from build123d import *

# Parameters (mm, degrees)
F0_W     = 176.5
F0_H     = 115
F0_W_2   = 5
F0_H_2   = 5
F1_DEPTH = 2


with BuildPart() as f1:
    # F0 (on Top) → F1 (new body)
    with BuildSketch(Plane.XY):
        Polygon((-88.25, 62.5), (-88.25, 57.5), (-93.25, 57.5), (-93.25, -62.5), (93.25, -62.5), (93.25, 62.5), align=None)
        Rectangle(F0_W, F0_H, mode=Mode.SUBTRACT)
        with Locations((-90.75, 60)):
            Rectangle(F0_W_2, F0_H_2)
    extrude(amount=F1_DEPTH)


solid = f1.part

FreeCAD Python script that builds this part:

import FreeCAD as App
import Part
import Sketcher

V = App.Vector

doc = App.newDocument("Part")
body = doc.addObject("PartDesign::Body", "Body")

# Sketch on XY plane
sketch1 = body.newObject("Sketcher::SketchObject", "Sketch")
sketch1.AttachmentSupport = (doc.getObject("XY_Plane"), [""])
sketch1.MapMode = "FlatFace"
sketch1.addGeometry(Part.LineSegment(V(93, -62, 0), V(93, 62, 0)), False)
sketch1.addGeometry(Part.LineSegment(V(93, 62, 0), V(-93, 62, 0)), False)
sketch1.addGeometry(Part.LineSegment(V(-93, 62, 0), V(-93, -62, 0)), False)
sketch1.addGeometry(Part.LineSegment(V(-93, -62, 0), V(93, -62, 0)), False)
sketch1.addGeometry(Part.LineSegment(V(-88, -58, 0), V(-88, 58, 0)), False)
sketch1.addGeometry(Part.LineSegment(V(-88, 58, 0), V(88, 58, 0)), False)
sketch1.addGeometry(Part.LineSegment(V(88, 58, 0), V(88, -58, 0)), False)
sketch1.addGeometry(Part.LineSegment(V(88, -58, 0), V(-88, -58, 0)), False)
sketch1.addConstraint(Sketcher.Constraint("Coincident", 0, 2, 1, 1))
sketch1.addConstraint(Sketcher.Constraint("Coincident", 1, 2, 2, 1))
sketch1.addConstraint(Sketcher.Constraint("Coincident", 2, 2, 3, 1))
sketch1.addConstraint(Sketcher.Constraint("Coincident", 3, 2, 0, 1))
sketch1.addConstraint(Sketcher.Constraint("Coincident", 4, 2, 5, 1))
sketch1.addConstraint(Sketcher.Constraint("Coincident", 5, 2, 6, 1))
sketch1.addConstraint(Sketcher.Constraint("Coincident", 6, 2, 7, 1))
sketch1.addConstraint(Sketcher.Constraint("Coincident", 7, 2, 4, 1))
sketch1.addConstraint(Sketcher.Constraint("Vertical", 0))
sketch1.addConstraint(Sketcher.Constraint("Horizontal", 1))
sketch1.addConstraint(Sketcher.Constraint("Vertical", 2))
sketch1.addConstraint(Sketcher.Constraint("Horizontal", 3))
sketch1.addConstraint(Sketcher.Constraint("Vertical", 4))
sketch1.addConstraint(Sketcher.Constraint("Horizontal", 5))
sketch1.addConstraint(Sketcher.Constraint("Vertical", 6))
sketch1.addConstraint(Sketcher.Constraint("Horizontal", 7))
sketch1.addConstraint(Sketcher.Constraint("Symmetric", 0, 2, 2, 2, -1, 1))
sketch1.addConstraint(Sketcher.Constraint("Symmetric", 4, 2, 6, 2, -1, 1))
sketch1.addConstraint(Sketcher.Constraint("DistanceY", 0, 1, 0, 2, 125.0))
sketch1.addConstraint(Sketcher.Constraint("DistanceY", 4, 1, 4, 2, 115.0))
sketch1.addConstraint(Sketcher.Constraint("DistanceX", 1, 2, 1, 1, 186.5))
sketch1.addConstraint(Sketcher.Constraint("DistanceX", 5, 1, 5, 2, 176.5))
pad1 = body.newObject("PartDesign::Pad", "Pad")
pad1.Profile = sketch1
pad1.Length = 2

doc.recompute()
